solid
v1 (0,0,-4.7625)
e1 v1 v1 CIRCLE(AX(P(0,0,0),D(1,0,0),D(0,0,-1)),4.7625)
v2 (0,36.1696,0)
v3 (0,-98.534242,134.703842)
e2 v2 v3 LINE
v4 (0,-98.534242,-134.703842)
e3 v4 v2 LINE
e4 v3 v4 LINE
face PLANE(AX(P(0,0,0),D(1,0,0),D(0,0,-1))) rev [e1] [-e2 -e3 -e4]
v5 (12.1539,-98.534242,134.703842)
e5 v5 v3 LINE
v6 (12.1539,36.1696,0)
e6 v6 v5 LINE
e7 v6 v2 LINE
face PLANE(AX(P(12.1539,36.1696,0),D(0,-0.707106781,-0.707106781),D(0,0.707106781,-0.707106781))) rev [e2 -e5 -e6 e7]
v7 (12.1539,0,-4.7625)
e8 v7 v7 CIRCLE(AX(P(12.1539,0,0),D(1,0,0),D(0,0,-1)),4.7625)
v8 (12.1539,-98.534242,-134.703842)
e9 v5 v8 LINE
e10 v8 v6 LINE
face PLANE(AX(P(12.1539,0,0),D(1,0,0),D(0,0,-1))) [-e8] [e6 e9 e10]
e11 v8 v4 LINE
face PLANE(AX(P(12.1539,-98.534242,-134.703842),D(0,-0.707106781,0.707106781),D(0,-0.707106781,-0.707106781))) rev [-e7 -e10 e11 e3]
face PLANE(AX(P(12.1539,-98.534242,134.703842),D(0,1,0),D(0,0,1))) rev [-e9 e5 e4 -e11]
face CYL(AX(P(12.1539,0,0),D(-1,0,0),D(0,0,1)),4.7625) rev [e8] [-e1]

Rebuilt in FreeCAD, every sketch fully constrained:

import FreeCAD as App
import Part
import Sketcher
from FreeCAD import Vector
Q = App.Units.Quantity

doc = App.newDocument("Part")
body = doc.addObject("PartDesign::Body", "Body")

sketch1 = body.newObject("Sketcher::SketchObject", "Sketch")
sketch1.AttachmentSupport = (doc.getObject("YZ_Plane"), [""])
sketch1.MapMode = "FlatFace"
sketch1.addGeometry([
    Part.LineSegment(Vector(36.2, 0, 0), Vector(-98.5, 134.7, 0)),
    Part.LineSegment(Vector(-98.5, 134.7, 0), Vector(-98.5, -134.7, 0)),
    Part.LineSegment(Vector(-98.5, -134.7, 0), Vector(36.2, 0, 0)),
    Part.Circle(Vector(0, 0, 0), Vector(0, 0, 1), 4.8),
], False)
sketch1.addConstraint([
    Sketcher.Constraint("Coincident", 0, 2, 1, 1),
    Sketcher.Constraint("Coincident", 1, 2, 2, 1),
    Sketcher.Constraint("Coincident", 2, 2, 0, 1),
    Sketcher.Constraint("Vertical", 1),
    Sketcher.Constraint("Coincident", 3, 3, -1, 1),
    Sketcher.Constraint("PointOnObject", 2, 2, -1),
    Sketcher.Constraint("Perpendicular", 0, 2),
    Sketcher.Constraint("Equal", 0, 2),
    Sketcher.Constraint("Diameter", 3, Q("0.375 in")),
    Sketcher.Constraint("Distance", 0, Q("7.5 in")),
    Sketcher.Constraint("DistanceX", -1, 1, 2, 2, Q("1.424 in")),
])
pad1 = body.newObject("PartDesign::Pad", "Pad")
pad1.Profile = sketch1
pad1.Length = Q("0.4785 in")

doc.recompute()
